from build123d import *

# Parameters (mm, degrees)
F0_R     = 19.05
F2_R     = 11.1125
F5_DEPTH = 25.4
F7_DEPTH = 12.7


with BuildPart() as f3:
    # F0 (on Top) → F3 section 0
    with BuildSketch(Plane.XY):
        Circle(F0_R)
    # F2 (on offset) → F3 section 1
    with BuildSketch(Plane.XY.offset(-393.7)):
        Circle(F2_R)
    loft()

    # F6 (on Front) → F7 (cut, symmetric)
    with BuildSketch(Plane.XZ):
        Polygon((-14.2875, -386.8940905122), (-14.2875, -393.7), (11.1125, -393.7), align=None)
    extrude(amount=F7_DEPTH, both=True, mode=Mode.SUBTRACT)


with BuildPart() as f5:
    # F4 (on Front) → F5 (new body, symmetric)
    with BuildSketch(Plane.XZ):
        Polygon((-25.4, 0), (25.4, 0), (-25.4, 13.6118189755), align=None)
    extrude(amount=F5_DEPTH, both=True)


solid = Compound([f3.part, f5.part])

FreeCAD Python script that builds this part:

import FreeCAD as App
import Part
import Sketcher
from FreeCAD import Vector
Q = App.Units.Quantity

doc = App.newDocument("Part")
body = doc.addObject("PartDesign::Body", "Body")

# Sketch on XY plane
sketch1 = doc.addObject("Sketcher::SketchObject", "Sketch")
body.addObject(sketch1)
sketch1.AttachmentSupport = (doc.XY_Plane, [""])
sketch1.MapMode = "FlatFace"
sketch1.addGeometry(Part.Circle(Vector(0, 0, 0), Vector(0, 0, 1), 19), False)
sketch1.addConstraint(Sketcher.Constraint("Coincident", 0, 3, -1, 1))
sketch1.addConstraint(Sketcher.Constraint("Diameter", 0, Q("1.5 in")))

# Sketch on XY plane
sketch2 = doc.addObject("Sketcher::SketchObject", "Sketch001")
body.addObject(sketch2)
sketch2.AttachmentSupport = (doc.XY_Plane, [""])
sketch2.MapMode = "FlatFace"
sketch2.AttachmentOffset = App.Placement(Vector(0, 0, -15.5 * 25.4), App.Rotation())
sketch2.addGeometry(Part.Circle(Vector(0, 0, 0), Vector(0, 0, 1), 11), False)
sketch2.addConstraint(Sketcher.Constraint("Coincident", 0, 3, -1, 1))
sketch2.addConstraint(Sketcher.Constraint("Diameter", 0, Q("0.875 in")))

additiveloft = doc.addObject("PartDesign::AdditiveLoft", "AdditiveLoft")
body.addObject(additiveloft)
additiveloft.Profile = sketch1
additiveloft.Sections = [sketch2]

# Sketch on XZ plane
sketch3 = doc.addObject("Sketcher::SketchObject", "Sketch002")
body.addObject(sketch3)
sketch3.AttachmentSupport = (doc.XZ_Plane, [""])
sketch3.MapMode = "FlatFace"
sketch3.addGeometry(Part.LineSegment(Vector(-14, -387, 0), Vector(-14, -394, 0)), False)
sketch3.addGeometry(Part.LineSegment(Vector(-14, -394, 0), Vector(11, -394, 0)), False)
sketch3.addGeometry(Part.LineSegment(Vector(11, -394, 0), Vector(-14, -387, 0)), False)
sketch3.addConstraint(Sketcher.Constraint("Coincident", 0, 2, 1, 1))
sketch3.addConstraint(Sketcher.Constraint("Coincident", 1, 2, 2, 1))
sketch3.addConstraint(Sketcher.Constraint("Coincident", 2, 2, 0, 1))
sketch3.addConstraint(Sketcher.Constraint("Vertical", 0))
sketch3.addConstraint(Sketcher.Constraint("Horizontal", 1))
sketch3.addConstraint(Sketcher.Constraint("DistanceX", 1, 1, 1, 2, Q("1 in")))
sketch3.addConstraint(Sketcher.Constraint("Angle", 2, Q("165 deg")))
sketch3.addConstraint(Sketcher.Constraint("DistanceY", 0, 2, -1, 1, Q("15.5 in")))
sketch3.addConstraint(Sketcher.Constraint("DistanceX", 0, 2, -1, 1, Q("0.5625 in")))
pocket1 = doc.addObject("PartDesign::Pocket", "Pocket")
body.addObject(pocket1)
pocket1.Profile = sketch3
pocket1.Length = Q("1 in")
pocket1.Midplane = True
body2 = doc.addObject("PartDesign::Body", "Body001")

# Sketch on XZ plane
sketch4 = doc.addObject("Sketcher::SketchObject", "Sketch003")
body2.addObject(sketch4)
sketch4.AttachmentSupport = (doc.getObject("XZ_Plane001"), [""])
sketch4.MapMode = "FlatFace"
sketch4.addGeometry(Part.LineSegment(Vector(-25, 0, 0), Vector(25, 0, 0)), False)
sketch4.addGeometry(Part.LineSegment(Vector(25, 0, 0), Vector(-25, 14, 0)), False)
sketch4.addGeometry(Part.LineSegment(Vector(-25, 14, 0), Vector(-25, 0, 0)), False)
sketch4.addConstraint(Sketcher.Constraint("Coincident", 0, 2, 1, 1))
sketch4.addConstraint(Sketcher.Constraint("Coincident", 1, 2, 2, 1))
sketch4.addConstraint(Sketcher.Constraint("Coincident", 2, 2, 0, 1))
sketch4.addConstraint(Sketcher.Constraint("Horizontal", 0))
sketch4.addConstraint(Sketcher.Constraint("Vertical", 2))
sketch4.addConstraint(Sketcher.Constraint("Symmetric", 0, 2, 2, 2, -1, 1))
sketch4.addConstraint(Sketcher.Constraint("DistanceX", 0, 1, 0, 2, Q("2 in")))
sketch4.addConstraint(Sketcher.Constraint("Angle", 1, Q("165 deg")))
pad1 = doc.addObject("PartDesign::Pad", "Pad")
body2.addObject(pad1)
pad1.Profile = sketch4
pad1.Length = Q("2 in")
pad1.Midplane = True

doc.recompute()
